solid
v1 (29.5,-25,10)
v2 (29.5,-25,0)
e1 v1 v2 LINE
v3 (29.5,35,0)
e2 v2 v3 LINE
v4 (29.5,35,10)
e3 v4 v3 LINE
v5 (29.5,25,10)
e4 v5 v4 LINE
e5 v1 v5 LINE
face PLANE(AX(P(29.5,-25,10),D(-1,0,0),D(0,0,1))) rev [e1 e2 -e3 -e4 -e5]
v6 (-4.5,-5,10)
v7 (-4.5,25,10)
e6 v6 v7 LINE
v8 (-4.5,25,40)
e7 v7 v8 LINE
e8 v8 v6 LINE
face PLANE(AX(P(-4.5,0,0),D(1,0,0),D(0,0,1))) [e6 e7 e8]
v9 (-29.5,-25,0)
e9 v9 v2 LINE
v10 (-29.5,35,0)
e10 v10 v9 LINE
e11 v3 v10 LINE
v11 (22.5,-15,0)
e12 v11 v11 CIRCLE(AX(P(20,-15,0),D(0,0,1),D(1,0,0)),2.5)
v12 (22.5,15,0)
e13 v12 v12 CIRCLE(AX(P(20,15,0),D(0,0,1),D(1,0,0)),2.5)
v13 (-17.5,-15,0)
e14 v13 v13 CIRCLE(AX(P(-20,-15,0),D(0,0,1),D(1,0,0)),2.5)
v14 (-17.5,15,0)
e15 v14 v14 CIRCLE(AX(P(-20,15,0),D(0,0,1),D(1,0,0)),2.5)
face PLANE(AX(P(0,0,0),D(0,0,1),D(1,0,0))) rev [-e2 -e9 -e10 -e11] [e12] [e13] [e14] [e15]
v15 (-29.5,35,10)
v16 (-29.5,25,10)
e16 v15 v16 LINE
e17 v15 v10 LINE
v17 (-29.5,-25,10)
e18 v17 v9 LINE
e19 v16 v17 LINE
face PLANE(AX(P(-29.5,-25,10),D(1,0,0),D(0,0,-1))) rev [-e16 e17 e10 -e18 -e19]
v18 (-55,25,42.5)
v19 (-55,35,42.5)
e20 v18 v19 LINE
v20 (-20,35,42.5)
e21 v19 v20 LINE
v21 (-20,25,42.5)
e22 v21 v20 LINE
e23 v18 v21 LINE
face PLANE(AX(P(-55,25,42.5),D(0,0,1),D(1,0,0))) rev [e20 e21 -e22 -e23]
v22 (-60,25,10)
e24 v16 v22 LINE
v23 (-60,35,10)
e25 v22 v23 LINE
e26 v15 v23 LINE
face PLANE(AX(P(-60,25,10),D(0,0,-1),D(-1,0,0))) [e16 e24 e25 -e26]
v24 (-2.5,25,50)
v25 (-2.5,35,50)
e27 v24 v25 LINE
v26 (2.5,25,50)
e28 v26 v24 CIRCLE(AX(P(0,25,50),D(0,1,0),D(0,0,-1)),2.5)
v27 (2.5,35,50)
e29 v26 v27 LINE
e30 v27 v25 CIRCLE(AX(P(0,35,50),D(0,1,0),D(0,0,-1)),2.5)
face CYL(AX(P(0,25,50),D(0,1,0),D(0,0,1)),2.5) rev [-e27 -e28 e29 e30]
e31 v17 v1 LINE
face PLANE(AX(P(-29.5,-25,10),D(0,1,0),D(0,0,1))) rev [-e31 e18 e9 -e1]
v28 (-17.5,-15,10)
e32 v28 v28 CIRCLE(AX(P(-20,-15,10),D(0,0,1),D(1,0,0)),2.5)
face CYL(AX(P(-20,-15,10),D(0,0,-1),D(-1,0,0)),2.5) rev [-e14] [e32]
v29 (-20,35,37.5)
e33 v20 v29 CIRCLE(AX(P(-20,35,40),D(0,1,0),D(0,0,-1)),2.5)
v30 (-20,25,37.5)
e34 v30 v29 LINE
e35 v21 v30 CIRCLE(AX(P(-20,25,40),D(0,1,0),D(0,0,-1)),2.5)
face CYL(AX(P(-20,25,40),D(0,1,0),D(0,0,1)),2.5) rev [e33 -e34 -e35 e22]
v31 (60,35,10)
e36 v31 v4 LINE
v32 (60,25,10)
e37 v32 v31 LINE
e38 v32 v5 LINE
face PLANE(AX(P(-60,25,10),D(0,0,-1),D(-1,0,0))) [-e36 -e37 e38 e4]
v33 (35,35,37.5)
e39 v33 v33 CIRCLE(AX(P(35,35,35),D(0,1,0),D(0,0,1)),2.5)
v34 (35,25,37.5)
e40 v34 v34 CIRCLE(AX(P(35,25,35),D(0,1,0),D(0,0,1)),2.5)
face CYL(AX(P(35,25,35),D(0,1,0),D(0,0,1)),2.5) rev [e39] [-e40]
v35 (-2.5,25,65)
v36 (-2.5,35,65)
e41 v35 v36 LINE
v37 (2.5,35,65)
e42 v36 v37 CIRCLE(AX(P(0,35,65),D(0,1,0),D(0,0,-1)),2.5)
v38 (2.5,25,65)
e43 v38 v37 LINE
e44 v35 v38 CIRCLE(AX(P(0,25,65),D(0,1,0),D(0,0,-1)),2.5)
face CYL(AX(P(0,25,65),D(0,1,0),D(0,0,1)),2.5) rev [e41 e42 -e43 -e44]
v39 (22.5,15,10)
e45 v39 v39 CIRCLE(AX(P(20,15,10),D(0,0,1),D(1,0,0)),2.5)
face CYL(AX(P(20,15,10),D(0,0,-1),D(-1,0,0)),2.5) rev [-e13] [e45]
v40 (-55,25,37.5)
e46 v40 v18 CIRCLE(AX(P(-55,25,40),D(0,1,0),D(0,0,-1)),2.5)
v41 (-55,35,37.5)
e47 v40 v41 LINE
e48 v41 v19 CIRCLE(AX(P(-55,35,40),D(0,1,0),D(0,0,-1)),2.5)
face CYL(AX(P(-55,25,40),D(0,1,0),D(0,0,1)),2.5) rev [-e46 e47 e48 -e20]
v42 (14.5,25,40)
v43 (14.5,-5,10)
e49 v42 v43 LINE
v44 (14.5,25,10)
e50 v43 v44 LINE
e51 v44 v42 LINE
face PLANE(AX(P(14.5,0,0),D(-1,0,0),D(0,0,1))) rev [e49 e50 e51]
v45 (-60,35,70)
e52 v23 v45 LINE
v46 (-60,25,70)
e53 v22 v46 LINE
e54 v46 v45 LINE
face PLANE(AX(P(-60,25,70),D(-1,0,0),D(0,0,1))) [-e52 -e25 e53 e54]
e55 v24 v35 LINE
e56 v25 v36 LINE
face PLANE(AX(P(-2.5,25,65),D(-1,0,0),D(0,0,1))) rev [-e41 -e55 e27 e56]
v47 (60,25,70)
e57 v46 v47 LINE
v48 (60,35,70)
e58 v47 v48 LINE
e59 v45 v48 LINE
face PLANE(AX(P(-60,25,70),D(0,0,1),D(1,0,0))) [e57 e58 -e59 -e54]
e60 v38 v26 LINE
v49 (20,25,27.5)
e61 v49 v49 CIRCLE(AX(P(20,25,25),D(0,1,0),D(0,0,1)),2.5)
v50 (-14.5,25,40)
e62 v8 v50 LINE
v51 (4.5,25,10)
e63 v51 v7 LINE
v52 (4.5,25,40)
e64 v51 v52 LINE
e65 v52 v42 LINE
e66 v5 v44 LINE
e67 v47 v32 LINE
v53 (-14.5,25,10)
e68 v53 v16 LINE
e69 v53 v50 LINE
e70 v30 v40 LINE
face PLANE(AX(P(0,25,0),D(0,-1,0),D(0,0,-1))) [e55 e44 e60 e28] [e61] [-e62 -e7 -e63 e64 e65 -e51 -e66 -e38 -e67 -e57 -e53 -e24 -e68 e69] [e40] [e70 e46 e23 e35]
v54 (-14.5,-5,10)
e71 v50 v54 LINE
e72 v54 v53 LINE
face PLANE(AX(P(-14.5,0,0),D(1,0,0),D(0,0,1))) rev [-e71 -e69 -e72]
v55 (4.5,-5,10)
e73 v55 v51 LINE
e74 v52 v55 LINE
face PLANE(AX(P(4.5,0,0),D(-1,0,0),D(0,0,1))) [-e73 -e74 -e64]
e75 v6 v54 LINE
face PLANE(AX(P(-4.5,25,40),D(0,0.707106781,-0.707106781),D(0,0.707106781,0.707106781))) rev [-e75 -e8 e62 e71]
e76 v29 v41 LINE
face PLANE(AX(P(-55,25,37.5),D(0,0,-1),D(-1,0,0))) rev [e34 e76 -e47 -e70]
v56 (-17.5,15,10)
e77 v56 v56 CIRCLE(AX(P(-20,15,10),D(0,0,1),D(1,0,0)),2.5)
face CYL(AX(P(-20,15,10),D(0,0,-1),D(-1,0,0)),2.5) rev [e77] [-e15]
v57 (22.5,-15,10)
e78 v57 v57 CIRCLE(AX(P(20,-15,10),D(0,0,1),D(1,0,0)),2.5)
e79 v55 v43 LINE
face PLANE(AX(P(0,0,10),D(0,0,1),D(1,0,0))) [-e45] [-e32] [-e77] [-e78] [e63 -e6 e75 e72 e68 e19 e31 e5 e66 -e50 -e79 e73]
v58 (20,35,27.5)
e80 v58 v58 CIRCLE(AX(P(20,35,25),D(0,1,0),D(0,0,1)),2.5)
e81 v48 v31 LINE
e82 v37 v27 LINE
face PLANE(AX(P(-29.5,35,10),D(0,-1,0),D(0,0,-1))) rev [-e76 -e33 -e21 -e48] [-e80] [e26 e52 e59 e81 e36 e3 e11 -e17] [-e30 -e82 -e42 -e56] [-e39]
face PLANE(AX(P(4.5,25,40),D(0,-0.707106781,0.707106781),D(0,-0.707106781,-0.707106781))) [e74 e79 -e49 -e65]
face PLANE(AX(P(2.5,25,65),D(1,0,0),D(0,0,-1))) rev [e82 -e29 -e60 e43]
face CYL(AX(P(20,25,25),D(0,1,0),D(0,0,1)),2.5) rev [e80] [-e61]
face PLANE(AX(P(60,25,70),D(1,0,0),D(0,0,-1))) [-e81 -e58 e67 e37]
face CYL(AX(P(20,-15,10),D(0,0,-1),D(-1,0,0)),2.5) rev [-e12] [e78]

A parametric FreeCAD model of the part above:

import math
import FreeCAD as App
import Part
import Sketcher
from FreeCAD import Vector

doc = App.newDocument("Part")
body = doc.addObject("PartDesign::Body", "Body")

# Sketch on XY plane
sketch1 = doc.addObject("Sketcher::SketchObject", "Sketch")
body.addObject(sketch1)
sketch1.AttachmentSupport = (doc.XY_Plane, [""])
sketch1.MapMode = "FlatFace"
sketch1.addGeometry([
    Part.LineSegment(Vector(-29.5, 35, 0), Vector(-29.5, -25, 0)),  # 0
    Part.LineSegment(Vector(-29.5, -25, 0), Vector(29.5, -25, 0)),  # 1
    Part.LineSegment(Vector(29.5, -25, 0), Vector(29.5, 35, 0)),  # 2
    Part.LineSegment(Vector(29.5, 35, 0), Vector(-29.5, 35, 0)),  # 3
    Part.Circle(Vector(20, -15, 0), Vector(0, 0, 1), 2.5),  # 4
    Part.Circle(Vector(-20, -15, 0), Vector(0, 0, 1), 2.5),  # 5
    Part.Circle(Vector(20, 15, 0), Vector(0, 0, 1), 2.5),  # 6
    Part.Circle(Vector(-20, 15, 0), Vector(0, 0, 1), 2.5),  # 7
], False)
sketch1.addConstraint([
    Sketcher.Constraint("Coincident", 0, 2, 1, 1),
    Sketcher.Constraint("Coincident", 1, 2, 2, 1),
    Sketcher.Constraint("Coincident", 2, 2, 3, 1),
    Sketcher.Constraint("Coincident", 3, 2, 0, 1),
    Sketcher.Constraint("Vertical", 0),
    Sketcher.Constraint("Horizontal", 1),
    Sketcher.Constraint("Vertical", 2),
    Sketcher.Constraint("Horizontal", 3),
    Sketcher.Constraint("Equal", 4, 5),
    Sketcher.Constraint("Equal", 5, 6),
    Sketcher.Constraint("Equal", 6, 7),
    Sketcher.Constraint("Symmetric", 5, 3, 6, 3, -1, 1),
    Sketcher.Constraint("Symmetric", 4, 3, 7, 3, -1, 1),
    Sketcher.Constraint("Symmetric", 4, 3, 5, 3, -2),
    Sketcher.Constraint("Diameter", 4, 5.0),
    Sketcher.Constraint("DistanceX", 1, 1, 1, 2, 59.0),
    Sketcher.Constraint("DistanceY", 0, 2, 0, 1, 60.0),
    Sketcher.Constraint("DistanceX", -1, 1, 4, 3, 20.0),
    Sketcher.Constraint("DistanceY", 4, 3, -1, 1, 15.0),
    Sketcher.Constraint("DistanceY", 0, 2, -1, 1, 25.0),
    Sketcher.Constraint("DistanceX", 0, 2, -1, 1, 29.5),
])
pad1 = doc.addObject("PartDesign::Pad", "Pad")
body.addObject(pad1)
pad1.Profile = sketch1
pad1.Length = 10

# Sketch on XZ plane
sketch2 = doc.addObject("Sketcher::SketchObject", "Sketch001")
body.addObject(sketch2)
sketch2.AttachmentSupport = (doc.XZ_Plane, [""])
sketch2.MapMode = "FlatFace"
sketch2.AttachmentOffset = App.Placement(Vector(0, 0, -35), App.Rotation())
sketch2.addGeometry([
    Part.LineSegment(Vector(-60, 10, 0), Vector(-60, 70, 0)),  # 0
    Part.LineSegment(Vector(-60, 70, 0), Vector(60, 70, 0)),  # 1
    Part.LineSegment(Vector(60, 70, 0), Vector(60, 10, 0)),  # 2
    Part.LineSegment(Vector(60, 10, 0), Vector(-60, 10, 0)),  # 3
    Part.ArcOfCircle(Part.Circle(Vector(0, 65, 0), Vector(0, 0, 1), 2.5), math.radians(0), math.radians(180)),  # 4
    Part.LineSegment(Vector(-2.5, 65, 0), Vector(-2.5, 50, 0)),  # 5
    Part.ArcOfCircle(Part.Circle(Vector(0, 50, 0), Vector(0, 0, 1), 2.5), math.radians(180), math.radians(360)),  # 6
    Part.LineSegment(Vector(2.5, 50, 0), Vector(2.5, 65, 0)),  # 7
    Part.ArcOfCircle(Part.Circle(Vector(-55, 40, 0), Vector(0, 0, 1), 2.5), math.radians(90), math.radians(270)),  # 8
    Part.LineSegment(Vector(-55, 37.5, 0), Vector(-20, 37.5, 0)),  # 9
    Part.ArcOfCircle(Part.Circle(Vector(-20, 40, 0), Vector(0, 0, 1), 2.5), math.radians(-90), math.radians(90)),  # 10
    Part.LineSegment(Vector(-20, 42.5, 0), Vector(-55, 42.5, 0)),  # 11
    Part.Circle(Vector(35, 35, 0), Vector(0, 0, 1), 2.5),  # 12
    Part.Circle(Vector(20, 25, 0), Vector(0, 0, 1), 2.5),  # 13
], False)
sketch2.addConstraint([
    Sketcher.Constraint("Coincident", 0, 2, 1, 1),
    Sketcher.Constraint("Coincident", 1, 2, 2, 1),
    Sketcher.Constraint("Coincident", 2, 2, 3, 1),
    Sketcher.Constraint("Coincident", 3, 2, 0, 1),
    Sketcher.Constraint("Tangent", 4, 2, 5, 1),
    Sketcher.Constraint("Tangent", 5, 2, 6, 1),
    Sketcher.Constraint("Tangent", 6, 2, 7, 1),
    Sketcher.Constraint("Tangent", 7, 2, 4, 1),
    Sketcher.Constraint("Tangent", 8, 2, 9, 1),
    Sketcher.Constraint("Tangent", 9, 2, 10, 1),
    Sketcher.Constraint("Tangent", 10, 2, 11, 1),
    Sketcher.Constraint("Tangent", 11, 2, 8, 1),
    Sketcher.Constraint("Vertical", 0),
    Sketcher.Constraint("Horizontal", 1),
    Sketcher.Constraint("Vertical", 2),
    Sketcher.Constraint("Horizontal", 3),
    Sketcher.Constraint("Vertical", 5),
    Sketcher.Constraint("Vertical", 7),
    Sketcher.Constraint("Horizontal", 9),
    Sketcher.Constraint("Horizontal", 11),
    Sketcher.Constraint("Equal", 6, 8),
    Sketcher.Constraint("Equal", 10, 12),
    Sketcher.Constraint("Equal", 12, 13),
    Sketcher.Constraint("PointOnObject", 4, 3, -2),
    Sketcher.Constraint("Diameter", 12, 5.0),
    Sketcher.Constraint("DistanceX", 1, 1, 1, 2, 120.0),
    Sketcher.Constraint("DistanceX", 9, 1, 9, 2, 35.0),
    Sketcher.Constraint("DistanceY", 0, 1, 0, 2, 60.0),
    Sketcher.Constraint("DistanceY", 5, 2, 5, 1, 15.0),
    Sketcher.Constraint("DistanceY", -1, 1, 4, 3, 65.0),
    Sketcher.Constraint("DistanceX", 8, 3, -1, 1, 55.0),
    Sketcher.Constraint("DistanceY", -1, 1, 8, 3, 40.0),
    Sketcher.Constraint("DistanceX", -1, 1, 12, 3, 35.0),
    Sketcher.Constraint("DistanceY", -1, 1, 12, 3, 35.0),
    Sketcher.Constraint("DistanceX", -1, 1, 13, 3, 20.0),
    Sketcher.Constraint("DistanceY", -1, 1, 13, 3, 25.0),
    Sketcher.Constraint("DistanceX", 0, 2, -1, 1, 60.0),
    Sketcher.Constraint("DistanceY", -1, 1, 0, 2, 70.0),
])
pad2 = doc.addObject("PartDesign::Pad", "Pad001")
body.addObject(pad2)
pad2.Profile = sketch2
pad2.Length = 10

# Sketch on YZ plane
sketch3 = doc.addObject("Sketcher::SketchObject", "Sketch002")
body.addObject(sketch3)
sketch3.AttachmentSupport = (doc.YZ_Plane, [""])
sketch3.MapMode = "FlatFace"
sketch3.AttachmentOffset = App.Placement(Vector(0, 0, 14.5), App.Rotation())
sketch3.addGeometry([
    Part.LineSegment(Vector(25, 10, 0), Vector(25, 40, 0)),
    Part.LineSegment(Vector(25, 40, 0), Vector(-5, 10, 0)),
    Part.LineSegment(Vector(-5, 10, 0), Vector(25, 10, 0)),
], False)
sketch3.addConstraint([
    Sketcher.Constraint("Coincident", 0, 2, 1, 1),
    Sketcher.Constraint("Coincident", 1, 2, 2, 1),
    Sketcher.Constraint("Coincident", 2, 2, 0, 1),
    Sketcher.Constraint("Vertical", 0),
    Sketcher.Constraint("Horizontal", 2),
    Sketcher.Constraint("Equal", 2, 0),
    Sketcher.Constraint("DistanceX", 2, 1, 2, 2, 30.0),
    Sketcher.Constraint("DistanceX", -1, 1, 0, 2, 25.0),
    Sketcher.Constraint("DistanceY", -1, 1, 0, 2, 40.0),
])
pad3 = doc.addObject("PartDesign::Pad", "Pad002")
body.addObject(pad3)
pad3.Profile = sketch3
pad3.Length = 10
pad3.Reversed = True
doc.recompute()

mirrored = doc.addObject("PartDesign::Mirrored", "Mirrored")
body.addObject(mirrored)
mirrored.Originals = [pad3]
mirrored.MirrorPlane = (doc.YZ_Plane, [""])
body.Tip = mirrored

doc.recompute()
